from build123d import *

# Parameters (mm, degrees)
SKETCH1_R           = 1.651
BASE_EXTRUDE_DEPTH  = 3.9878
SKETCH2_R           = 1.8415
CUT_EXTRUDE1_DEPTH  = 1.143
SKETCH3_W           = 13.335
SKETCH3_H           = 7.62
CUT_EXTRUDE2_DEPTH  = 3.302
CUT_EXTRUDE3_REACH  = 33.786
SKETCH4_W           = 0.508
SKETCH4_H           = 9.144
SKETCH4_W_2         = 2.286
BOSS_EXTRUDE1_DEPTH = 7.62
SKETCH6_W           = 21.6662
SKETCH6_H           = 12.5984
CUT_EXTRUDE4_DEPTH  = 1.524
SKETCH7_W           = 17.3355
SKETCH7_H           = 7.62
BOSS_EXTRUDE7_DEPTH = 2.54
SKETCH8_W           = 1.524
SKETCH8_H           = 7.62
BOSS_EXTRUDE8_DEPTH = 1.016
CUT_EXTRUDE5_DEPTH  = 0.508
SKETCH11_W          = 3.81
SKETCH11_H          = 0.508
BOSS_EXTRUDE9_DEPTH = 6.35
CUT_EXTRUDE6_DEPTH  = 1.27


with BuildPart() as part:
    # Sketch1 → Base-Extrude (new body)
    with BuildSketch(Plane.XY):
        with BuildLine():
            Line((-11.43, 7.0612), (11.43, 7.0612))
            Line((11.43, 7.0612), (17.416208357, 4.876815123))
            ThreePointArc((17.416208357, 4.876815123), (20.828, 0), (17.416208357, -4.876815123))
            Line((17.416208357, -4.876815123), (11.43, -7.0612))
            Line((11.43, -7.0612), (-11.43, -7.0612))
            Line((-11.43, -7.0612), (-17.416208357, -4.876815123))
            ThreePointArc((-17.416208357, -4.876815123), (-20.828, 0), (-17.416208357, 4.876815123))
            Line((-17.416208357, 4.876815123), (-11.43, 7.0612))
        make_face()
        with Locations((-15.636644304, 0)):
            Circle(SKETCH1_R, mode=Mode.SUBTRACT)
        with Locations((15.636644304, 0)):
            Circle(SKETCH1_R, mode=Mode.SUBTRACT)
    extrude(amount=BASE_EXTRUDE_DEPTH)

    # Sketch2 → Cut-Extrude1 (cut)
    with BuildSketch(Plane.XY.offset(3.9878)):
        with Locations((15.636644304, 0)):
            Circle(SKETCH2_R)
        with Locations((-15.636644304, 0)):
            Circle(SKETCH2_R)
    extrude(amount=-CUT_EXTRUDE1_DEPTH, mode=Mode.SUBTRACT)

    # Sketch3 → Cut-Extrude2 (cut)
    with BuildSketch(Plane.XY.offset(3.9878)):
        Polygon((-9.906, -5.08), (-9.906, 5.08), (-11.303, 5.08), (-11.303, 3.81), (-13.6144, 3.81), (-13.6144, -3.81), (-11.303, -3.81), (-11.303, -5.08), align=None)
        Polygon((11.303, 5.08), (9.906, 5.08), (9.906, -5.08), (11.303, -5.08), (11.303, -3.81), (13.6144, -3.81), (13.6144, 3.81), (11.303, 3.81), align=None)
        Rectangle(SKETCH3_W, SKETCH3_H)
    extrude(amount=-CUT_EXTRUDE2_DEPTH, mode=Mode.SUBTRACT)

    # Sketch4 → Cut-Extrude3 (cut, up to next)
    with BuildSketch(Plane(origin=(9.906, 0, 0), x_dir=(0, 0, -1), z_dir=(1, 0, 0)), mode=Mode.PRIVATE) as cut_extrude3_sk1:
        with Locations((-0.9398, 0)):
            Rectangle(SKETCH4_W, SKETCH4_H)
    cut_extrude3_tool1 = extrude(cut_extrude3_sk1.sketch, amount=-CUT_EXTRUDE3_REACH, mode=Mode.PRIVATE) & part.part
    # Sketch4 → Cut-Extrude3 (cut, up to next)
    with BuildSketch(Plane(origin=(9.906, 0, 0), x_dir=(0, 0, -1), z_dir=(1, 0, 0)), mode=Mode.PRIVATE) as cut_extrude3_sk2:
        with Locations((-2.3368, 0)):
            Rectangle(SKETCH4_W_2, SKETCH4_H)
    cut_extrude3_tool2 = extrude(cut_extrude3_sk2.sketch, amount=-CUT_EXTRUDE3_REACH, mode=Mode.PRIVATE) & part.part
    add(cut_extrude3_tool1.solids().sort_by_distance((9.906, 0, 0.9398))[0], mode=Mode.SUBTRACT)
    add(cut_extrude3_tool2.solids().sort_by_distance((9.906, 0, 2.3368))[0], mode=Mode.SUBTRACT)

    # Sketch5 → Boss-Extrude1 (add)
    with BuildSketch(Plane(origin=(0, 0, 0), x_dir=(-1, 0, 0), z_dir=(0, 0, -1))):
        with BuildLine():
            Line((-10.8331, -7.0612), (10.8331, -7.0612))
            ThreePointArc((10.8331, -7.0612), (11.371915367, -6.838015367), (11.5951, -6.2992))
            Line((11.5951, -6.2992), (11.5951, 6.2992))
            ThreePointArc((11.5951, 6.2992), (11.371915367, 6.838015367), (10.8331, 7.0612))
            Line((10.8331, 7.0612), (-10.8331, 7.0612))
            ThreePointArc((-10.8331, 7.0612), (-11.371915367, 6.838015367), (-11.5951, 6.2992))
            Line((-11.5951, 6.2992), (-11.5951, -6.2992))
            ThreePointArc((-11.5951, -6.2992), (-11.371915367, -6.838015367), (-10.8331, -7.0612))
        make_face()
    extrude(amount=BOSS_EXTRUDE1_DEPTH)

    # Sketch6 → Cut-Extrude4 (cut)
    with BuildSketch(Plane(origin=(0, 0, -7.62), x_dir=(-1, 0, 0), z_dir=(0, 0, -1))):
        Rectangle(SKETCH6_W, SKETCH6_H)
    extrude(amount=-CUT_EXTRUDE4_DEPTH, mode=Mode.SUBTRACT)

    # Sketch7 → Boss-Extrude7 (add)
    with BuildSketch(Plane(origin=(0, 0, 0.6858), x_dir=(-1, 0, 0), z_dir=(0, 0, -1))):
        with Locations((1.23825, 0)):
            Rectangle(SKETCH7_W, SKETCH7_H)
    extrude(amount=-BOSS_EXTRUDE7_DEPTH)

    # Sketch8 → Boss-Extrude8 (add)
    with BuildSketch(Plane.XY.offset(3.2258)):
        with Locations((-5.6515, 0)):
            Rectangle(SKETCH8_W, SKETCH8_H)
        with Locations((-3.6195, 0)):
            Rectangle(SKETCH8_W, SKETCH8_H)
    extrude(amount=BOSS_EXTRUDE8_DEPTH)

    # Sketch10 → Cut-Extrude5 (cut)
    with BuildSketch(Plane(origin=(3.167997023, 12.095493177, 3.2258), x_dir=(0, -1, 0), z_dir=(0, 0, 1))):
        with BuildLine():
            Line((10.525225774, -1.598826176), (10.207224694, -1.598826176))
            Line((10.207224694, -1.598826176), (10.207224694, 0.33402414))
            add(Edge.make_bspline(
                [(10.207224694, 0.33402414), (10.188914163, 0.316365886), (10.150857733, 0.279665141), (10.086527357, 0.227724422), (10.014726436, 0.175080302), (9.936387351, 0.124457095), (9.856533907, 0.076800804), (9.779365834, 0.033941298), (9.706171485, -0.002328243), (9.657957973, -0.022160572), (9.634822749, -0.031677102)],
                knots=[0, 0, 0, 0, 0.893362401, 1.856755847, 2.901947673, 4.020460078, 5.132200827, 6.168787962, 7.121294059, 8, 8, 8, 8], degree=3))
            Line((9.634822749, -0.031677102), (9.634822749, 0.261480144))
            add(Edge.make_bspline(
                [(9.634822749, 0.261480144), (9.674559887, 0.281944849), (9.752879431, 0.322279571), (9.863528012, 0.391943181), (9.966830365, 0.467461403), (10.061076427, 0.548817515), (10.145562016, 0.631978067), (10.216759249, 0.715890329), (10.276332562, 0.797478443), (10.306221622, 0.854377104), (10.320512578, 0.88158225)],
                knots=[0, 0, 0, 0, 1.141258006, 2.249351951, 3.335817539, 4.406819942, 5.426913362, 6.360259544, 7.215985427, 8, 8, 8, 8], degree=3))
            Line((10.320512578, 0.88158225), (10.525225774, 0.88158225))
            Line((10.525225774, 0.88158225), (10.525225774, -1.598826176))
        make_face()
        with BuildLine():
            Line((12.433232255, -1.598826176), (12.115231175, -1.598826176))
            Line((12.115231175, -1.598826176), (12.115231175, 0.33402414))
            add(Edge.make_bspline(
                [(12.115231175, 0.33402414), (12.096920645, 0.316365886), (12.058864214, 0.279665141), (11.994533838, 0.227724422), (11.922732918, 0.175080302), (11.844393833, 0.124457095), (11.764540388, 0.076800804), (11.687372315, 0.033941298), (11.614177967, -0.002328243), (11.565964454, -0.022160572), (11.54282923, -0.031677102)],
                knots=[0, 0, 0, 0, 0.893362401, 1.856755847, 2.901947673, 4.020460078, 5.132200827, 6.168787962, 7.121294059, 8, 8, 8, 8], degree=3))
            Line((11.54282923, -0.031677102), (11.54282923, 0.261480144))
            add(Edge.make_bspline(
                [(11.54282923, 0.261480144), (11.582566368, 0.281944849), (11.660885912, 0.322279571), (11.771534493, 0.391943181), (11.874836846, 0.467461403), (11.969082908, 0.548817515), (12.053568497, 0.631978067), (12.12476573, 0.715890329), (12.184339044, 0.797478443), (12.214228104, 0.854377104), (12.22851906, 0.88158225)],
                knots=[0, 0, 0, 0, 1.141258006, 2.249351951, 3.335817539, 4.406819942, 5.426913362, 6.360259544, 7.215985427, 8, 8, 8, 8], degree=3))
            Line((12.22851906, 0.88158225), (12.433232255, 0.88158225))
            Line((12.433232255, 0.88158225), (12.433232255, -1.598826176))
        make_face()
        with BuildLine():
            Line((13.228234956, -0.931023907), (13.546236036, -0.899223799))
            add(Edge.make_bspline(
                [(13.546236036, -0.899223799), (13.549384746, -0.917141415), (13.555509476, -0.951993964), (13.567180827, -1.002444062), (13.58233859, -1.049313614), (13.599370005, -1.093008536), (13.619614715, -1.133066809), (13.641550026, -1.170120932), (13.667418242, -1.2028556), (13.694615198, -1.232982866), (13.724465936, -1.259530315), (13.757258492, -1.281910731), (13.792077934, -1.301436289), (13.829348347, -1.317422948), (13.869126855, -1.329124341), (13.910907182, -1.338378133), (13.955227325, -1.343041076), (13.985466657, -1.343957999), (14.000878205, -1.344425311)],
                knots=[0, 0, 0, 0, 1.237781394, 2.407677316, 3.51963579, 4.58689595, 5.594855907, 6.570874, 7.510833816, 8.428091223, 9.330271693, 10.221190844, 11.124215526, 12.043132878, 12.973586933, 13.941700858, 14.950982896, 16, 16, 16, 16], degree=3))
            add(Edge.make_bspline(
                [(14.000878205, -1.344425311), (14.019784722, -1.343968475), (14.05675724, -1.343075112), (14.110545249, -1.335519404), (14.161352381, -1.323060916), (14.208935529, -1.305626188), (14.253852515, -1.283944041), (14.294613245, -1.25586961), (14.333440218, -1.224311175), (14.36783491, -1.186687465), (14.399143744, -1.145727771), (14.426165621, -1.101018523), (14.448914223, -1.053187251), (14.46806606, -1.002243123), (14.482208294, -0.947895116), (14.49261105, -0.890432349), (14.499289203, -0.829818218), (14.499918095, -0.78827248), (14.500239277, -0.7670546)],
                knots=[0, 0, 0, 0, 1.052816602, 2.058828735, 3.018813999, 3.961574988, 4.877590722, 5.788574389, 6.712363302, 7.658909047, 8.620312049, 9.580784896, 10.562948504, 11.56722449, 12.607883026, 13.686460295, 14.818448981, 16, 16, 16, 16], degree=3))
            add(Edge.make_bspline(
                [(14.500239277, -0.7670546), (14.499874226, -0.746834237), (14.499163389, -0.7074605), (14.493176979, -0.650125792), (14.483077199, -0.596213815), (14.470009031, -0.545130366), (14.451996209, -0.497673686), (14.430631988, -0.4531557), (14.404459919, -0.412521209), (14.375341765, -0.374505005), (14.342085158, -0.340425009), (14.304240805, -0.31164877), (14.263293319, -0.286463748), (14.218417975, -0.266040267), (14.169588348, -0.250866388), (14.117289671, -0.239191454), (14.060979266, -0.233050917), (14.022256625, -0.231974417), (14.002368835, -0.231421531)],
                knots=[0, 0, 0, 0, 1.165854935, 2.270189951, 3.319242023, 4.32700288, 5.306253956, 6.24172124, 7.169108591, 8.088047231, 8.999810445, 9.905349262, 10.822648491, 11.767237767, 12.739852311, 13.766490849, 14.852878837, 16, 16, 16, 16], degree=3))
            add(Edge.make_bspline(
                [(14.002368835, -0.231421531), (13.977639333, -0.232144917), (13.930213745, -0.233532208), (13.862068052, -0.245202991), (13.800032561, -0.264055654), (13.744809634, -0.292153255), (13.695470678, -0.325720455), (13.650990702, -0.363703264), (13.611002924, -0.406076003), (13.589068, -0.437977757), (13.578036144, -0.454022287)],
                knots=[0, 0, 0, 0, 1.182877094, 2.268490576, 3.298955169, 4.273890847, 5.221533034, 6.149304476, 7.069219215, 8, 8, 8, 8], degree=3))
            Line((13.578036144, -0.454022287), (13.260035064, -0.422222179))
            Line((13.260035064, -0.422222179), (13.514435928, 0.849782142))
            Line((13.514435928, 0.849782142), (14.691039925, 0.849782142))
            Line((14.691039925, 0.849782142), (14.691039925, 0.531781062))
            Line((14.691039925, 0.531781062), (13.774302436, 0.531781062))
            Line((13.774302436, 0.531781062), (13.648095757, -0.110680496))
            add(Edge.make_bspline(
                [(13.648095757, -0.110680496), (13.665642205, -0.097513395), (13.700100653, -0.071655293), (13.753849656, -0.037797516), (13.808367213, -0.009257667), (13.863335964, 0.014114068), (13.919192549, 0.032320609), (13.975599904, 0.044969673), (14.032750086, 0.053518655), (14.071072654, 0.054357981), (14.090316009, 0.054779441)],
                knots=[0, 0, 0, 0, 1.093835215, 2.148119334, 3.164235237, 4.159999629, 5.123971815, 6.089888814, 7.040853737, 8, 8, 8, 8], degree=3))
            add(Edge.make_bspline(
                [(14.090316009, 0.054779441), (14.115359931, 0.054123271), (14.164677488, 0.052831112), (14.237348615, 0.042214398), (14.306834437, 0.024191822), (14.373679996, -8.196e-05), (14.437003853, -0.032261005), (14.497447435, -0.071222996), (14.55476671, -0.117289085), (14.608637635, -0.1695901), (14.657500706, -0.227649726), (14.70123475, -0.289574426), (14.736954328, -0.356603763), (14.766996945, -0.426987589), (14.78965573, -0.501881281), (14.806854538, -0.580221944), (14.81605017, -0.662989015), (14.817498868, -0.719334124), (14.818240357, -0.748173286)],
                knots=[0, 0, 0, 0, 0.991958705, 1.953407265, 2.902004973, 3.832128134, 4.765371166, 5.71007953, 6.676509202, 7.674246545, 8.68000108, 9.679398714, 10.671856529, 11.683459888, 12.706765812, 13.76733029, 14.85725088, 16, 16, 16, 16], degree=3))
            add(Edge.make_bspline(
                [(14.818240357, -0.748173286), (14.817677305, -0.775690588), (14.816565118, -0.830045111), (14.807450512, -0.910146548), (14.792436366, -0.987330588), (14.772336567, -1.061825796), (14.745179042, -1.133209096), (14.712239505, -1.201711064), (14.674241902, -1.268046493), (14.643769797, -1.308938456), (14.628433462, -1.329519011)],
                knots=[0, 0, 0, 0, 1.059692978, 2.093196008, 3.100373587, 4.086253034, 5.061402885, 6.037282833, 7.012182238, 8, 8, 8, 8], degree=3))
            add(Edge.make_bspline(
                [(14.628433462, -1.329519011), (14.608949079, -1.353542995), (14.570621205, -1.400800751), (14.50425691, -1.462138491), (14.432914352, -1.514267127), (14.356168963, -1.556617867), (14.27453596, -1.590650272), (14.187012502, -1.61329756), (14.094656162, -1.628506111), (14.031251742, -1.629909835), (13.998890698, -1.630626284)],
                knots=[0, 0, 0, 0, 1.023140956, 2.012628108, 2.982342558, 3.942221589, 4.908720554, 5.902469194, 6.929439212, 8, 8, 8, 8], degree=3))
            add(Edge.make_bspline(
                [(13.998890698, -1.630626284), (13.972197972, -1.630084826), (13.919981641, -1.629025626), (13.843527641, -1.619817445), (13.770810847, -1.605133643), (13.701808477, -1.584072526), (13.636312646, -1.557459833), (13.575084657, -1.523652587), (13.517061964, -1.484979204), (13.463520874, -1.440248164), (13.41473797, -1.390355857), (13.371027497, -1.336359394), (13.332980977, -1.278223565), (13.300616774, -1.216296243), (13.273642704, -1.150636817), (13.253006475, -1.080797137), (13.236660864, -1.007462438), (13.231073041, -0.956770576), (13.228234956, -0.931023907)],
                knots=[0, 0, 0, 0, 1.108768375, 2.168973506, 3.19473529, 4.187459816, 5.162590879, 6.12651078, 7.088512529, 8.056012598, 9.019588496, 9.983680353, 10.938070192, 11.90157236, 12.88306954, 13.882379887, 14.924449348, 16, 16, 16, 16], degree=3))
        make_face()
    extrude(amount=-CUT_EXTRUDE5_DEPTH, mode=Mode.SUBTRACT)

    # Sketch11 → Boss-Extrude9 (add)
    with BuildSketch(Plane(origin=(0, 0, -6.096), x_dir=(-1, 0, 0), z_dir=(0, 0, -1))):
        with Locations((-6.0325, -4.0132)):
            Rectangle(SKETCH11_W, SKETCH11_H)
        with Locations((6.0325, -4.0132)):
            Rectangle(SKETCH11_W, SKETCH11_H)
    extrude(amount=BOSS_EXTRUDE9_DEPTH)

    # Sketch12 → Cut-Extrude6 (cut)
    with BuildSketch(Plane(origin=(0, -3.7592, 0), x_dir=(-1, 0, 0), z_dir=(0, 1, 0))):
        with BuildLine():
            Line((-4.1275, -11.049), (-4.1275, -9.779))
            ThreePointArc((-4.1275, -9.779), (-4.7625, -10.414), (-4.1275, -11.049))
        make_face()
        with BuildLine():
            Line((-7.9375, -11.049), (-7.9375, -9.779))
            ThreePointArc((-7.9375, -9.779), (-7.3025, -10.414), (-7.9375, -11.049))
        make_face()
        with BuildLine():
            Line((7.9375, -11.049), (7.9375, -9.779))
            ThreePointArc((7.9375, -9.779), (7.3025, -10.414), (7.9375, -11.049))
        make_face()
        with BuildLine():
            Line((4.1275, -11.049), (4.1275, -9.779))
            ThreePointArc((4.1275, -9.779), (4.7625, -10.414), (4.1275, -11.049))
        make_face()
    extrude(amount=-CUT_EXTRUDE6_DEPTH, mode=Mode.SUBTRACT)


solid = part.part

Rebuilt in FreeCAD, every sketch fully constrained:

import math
import FreeCAD as App
import Part
import Sketcher
Q = App.Units.Quantity


def add_polygon(sketch, points):
    """Adds a closed chain of lines whose ends are joined by coincident constraints."""
    first, n = sketch.GeometryCount, len(points)
    for a, b in zip(points, points[1:] + points[:1]):
        sketch.addGeometry(Part.LineSegment(App.Vector(*a, 0), App.Vector(*b, 0)), False)
    for i in range(n):
        sketch.addConstraint(Sketcher.Constraint("Coincident", first + i, 2, first + (i + 1) % n, 1))

doc = App.newDocument("Part")
body = doc.addObject("PartDesign::Body", "Body")

sketch1 = body.newObject("Sketcher::SketchObject", "Sketch")
sketch1.AttachmentSupport = (doc.getObject("XY_Plane"), [""])
sketch1.MapMode = "FlatFace"
sketch1.addGeometry([
    Part.LineSegment(App.Vector(11.4, 7.1, 0), App.Vector(-11.4, 7.1, 0)),
    Part.LineSegment(App.Vector(-11.4, 7.1, 0), App.Vector(-17.4, 4.9, 0)),
    Part.ArcOfCircle(Part.Circle(App.Vector(-15.6, 0, 0), App.Vector(0, 0, 1), 5.2), math.radians(110), math.radians(250)),
    Part.LineSegment(App.Vector(-17.4, -4.9, 0), App.Vector(-11.4, -7.1, 0)),
    Part.LineSegment(App.Vector(-11.4, -7.1, 0), App.Vector(11.4, -7.1, 0)),
    Part.LineSegment(App.Vector(11.4, -7.1, 0), App.Vector(17.4, -4.9, 0)),
    Part.ArcOfCircle(Part.Circle(App.Vector(15.6, 0, 0), App.Vector(0, 0, 1), 5.2), math.radians(-70), math.radians(70)),
    Part.LineSegment(App.Vector(17.4, 4.9, 0), App.Vector(11.4, 7.1, 0)),
    Part.Circle(App.Vector(15.6, 0, 0), App.Vector(0, 0, 1), 1.7),
    Part.Circle(App.Vector(-15.6, 0, 0), App.Vector(0, 0, 1), 1.7),
], False)
sketch1.addConstraint([
    Sketcher.Constraint("Coincident", 0, 2, 1, 1),
    Sketcher.Constraint("Tangent", 1, 2, 2, 1),
    Sketcher.Constraint("Tangent", 2, 2, 3, 1),
    Sketcher.Constraint("Coincident", 3, 2, 4, 1),
    Sketcher.Constraint("Coincident", 4, 2, 5, 1),
    Sketcher.Constraint("Tangent", 5, 2, 6, 1),
    Sketcher.Constraint("Tangent", 6, 2, 7, 1),
    Sketcher.Constraint("Coincident", 7, 2, 0, 1),
    Sketcher.Constraint("Horizontal", 0),
    Sketcher.Constraint("Horizontal", 4),
    Sketcher.Constraint("Coincident", 8, 3, 6, 3),
    Sketcher.Constraint("Coincident", 9, 3, 2, 3),
    Sketcher.Constraint("Equal", 2, 6),
    Sketcher.Constraint("Equal", 8, 9),
    Sketcher.Constraint("Symmetric", 2, 3, 6, 3, -1, 1),
    Sketcher.Constraint("Symmetric", 0, 2, 4, 2, -1, 1),
    Sketcher.Constraint("Symmetric", 2, 2, 5, 2, -2),
    Sketcher.Constraint("Parallel", 3, 7),
    Sketcher.Constraint("Diameter", 8, Q("0.13 in")),
    Sketcher.Constraint("DistanceX", 0, 2, 0, 1, Q("0.9 in")),
    Sketcher.Constraint("DistanceY", -1, 1, 0, 2, Q("0.278 in")),
    Sketcher.Constraint("Radius", 2, Q("5.191356 mm")),
    Sketcher.Constraint("Distance", 1, Q("6.372302 mm")),
])
pad1 = body.newObject("PartDesign::Pad", "Pad")
pad1.Profile = sketch1
pad1.Length = Q("0.157 in")

sketch2 = body.newObject("Sketcher::SketchObject", "Sketch001")
sketch2.AttachmentSupport = (doc.getObject("XY_Plane"), [""])
sketch2.MapMode = "FlatFace"
sketch2.AttachmentOffset = App.Placement(App.Vector(0, 0, 0.157 * 25.4), App.Rotation())
sketch2.addGeometry([
    Part.Circle(App.Vector(15.6, 0, 0), App.Vector(0, 0, 1), 1.8),
    Part.Circle(App.Vector(-15.6, 0, 0), App.Vector(0, 0, 1), 1.8),
], False)
sketch2.addConstraint([
    Sketcher.Constraint("Equal", 0, 1),
    Sketcher.Constraint("Symmetric", 0, 3, 1, 3, -1, 1),
    Sketcher.Constraint("PointOnObject", 0, 3, -1),
    Sketcher.Constraint("Diameter", 0, Q("0.145 in")),
    Sketcher.Constraint("DistanceX", 1, 3, 0, 3, Q("31.273289 mm")),
])
pocket1 = body.newObject("PartDesign::Pocket", "Pocket")
pocket1.Profile = sketch2
pocket1.Length = Q("0.045 in")

sketch3 = body.newObject("Sketcher::SketchObject", "Sketch002")
sketch3.AttachmentSupport = (doc.getObject("XY_Plane"), [""])
sketch3.MapMode = "FlatFace"
sketch3.AttachmentOffset = App.Placement(App.Vector(0, 0, 0.157 * 25.4), App.Rotation())
add_polygon(sketch3, [(-9.9, -5.1), (-9.9, 5.1), (-11.3, 5.1), (-11.3, 3.8), (-13.6, 3.8), (-13.6, -3.8), (-11.3, -3.8), (-11.3, -5.1)])
add_polygon(sketch3, [(11.3, 5.1), (9.9, 5.1), (9.9, -5.1), (11.3, -5.1), (11.3, -3.8), (13.6, -3.8), (13.6, 3.8), (11.3, 3.8)])
add_polygon(sketch3, [(-6.7, 3.8), (-6.7, -3.8), (6.7, -3.8), (6.7, 3.8)])
sketch3.addConstraint([
    Sketcher.Constraint("Vertical", 0),
    Sketcher.Constraint("Horizontal", 1),
    Sketcher.Constraint("Vertical", 2),
    Sketcher.Constraint("Horizontal", 3),
    Sketcher.Constraint("Vertical", 4),
    Sketcher.Constraint("Horizontal", 5),
    Sketcher.Constraint("Vertical", 6),
    Sketcher.Constraint("Horizontal", 7),
    Sketcher.Constraint("Horizontal", 8),
    Sketcher.Constraint("Vertical", 9),
    Sketcher.Constraint("Horizontal", 10),
    Sketcher.Constraint("Vertical", 11),
    Sketcher.Constraint("Horizontal", 12),
    Sketcher.Constraint("Vertical", 13),
    Sketcher.Constraint("Horizontal", 14),
    Sketcher.Constraint("Vertical", 15),
    Sketcher.Constraint("Vertical", 16),
    Sketcher.Constraint("Horizontal", 17),
    Sketcher.Constraint("Vertical", 18),
    Sketcher.Constraint("Horizontal", 19),
    Sketcher.Constraint("Symmetric", 7, 2, 8, 2, -1, 1),
    Sketcher.Constraint("Symmetric", 1, 2, 10, 2, -1, 1),
    Sketcher.Constraint("Symmetric", 3, 2, 12, 2, -1, 1),
    Sketcher.Constraint("Symmetric", 5, 2, 14, 2, -1, 1),
    Sketcher.Constraint("Symmetric", 16, 2, 18, 2, -1, 1),
    Sketcher.Constraint("Symmetric", 6, 2, 10, 2, -2),
    Sketcher.Constraint("Horizontal", 5, 2, 11, 2),
    Sketcher.Constraint("Horizontal", 12, 2, 16, 2),
    Sketcher.Constraint("DistanceY", 0, 1, 0, 2, Q("0.4 in")),
    Sketcher.Constraint("DistanceY", 4, 2, 4, 1, Q("0.3 in")),
    Sketcher.Constraint("DistanceX", 1, 2, 1, 1, Q("0.055 in")),
    Sketcher.Constraint("DistanceX", 3, 2, 3, 1, Q("0.091 in")),
    Sketcher.Constraint("DistanceX", 17, 1, 17, 2, Q("0.525 in")),
    Sketcher.Constraint("DistanceX", 0, 2, -1, 1, Q("0.39 in")),
])
pocket2 = body.newObject("PartDesign::Pocket", "Pocket001")
pocket2.Profile = sketch3
pocket2.Length = Q("0.13 in")

sketch4 = body.newObject("Sketcher::SketchObject", "Sketch003")
sketch4.AttachmentSupport = (doc.getObject("YZ_Plane"), [""])
sketch4.MapMode = "FlatFace"
sketch4.AttachmentOffset = App.Placement(App.Vector(0, 0, 0.39 * 25.4), App.Rotation())
add_polygon(sketch4, [(4.6, 1.2), (-4.6, 1.2), (-4.6, 0.7), (4.6, 0.7)])
sketch4.addConstraint([
    Sketcher.Constraint("Horizontal", 0),
    Sketcher.Constraint("Vertical", 1),
    Sketcher.Constraint("Horizontal", 2),
    Sketcher.Constraint("Vertical", 3),
    Sketcher.Constraint("DistanceX", 0, 2, 0, 1, Q("0.36 in")),
    Sketcher.Constraint("DistanceY", 1, 2, 1, 1, Q("0.02 in")),
    Sketcher.Constraint("DistanceX", 0, 2, -1, 1, Q("0.18 in")),
    Sketcher.Constraint("DistanceY", -1, 1, 0, 2, Q("0.047 in")),
])
pocket3 = body.newObject("PartDesign::Pocket", "Pocket002")
pocket3.Profile = sketch4
pocket3.Length = Q("0.78 in")

sketch5 = body.newObject("Sketcher::SketchObject", "Sketch004")
sketch5.AttachmentSupport = (doc.getObject("YZ_Plane"), [""])
sketch5.MapMode = "FlatFace"
sketch5.AttachmentOffset = App.Placement(App.Vector(0, 0, 0.39 * 25.4), App.Rotation())
add_polygon(sketch5, [(4.6, 3.5), (-4.6, 3.5), (-4.6, 1.2), (4.6, 1.2)])
sketch5.addConstraint([
    Sketcher.Constraint("Horizontal", 0),
    Sketcher.Constraint("Vertical", 1),
    Sketcher.Constraint("Horizontal", 2),
    Sketcher.Constraint("Vertical", 3),
    Sketcher.Constraint("DistanceX", 0, 2, 0, 1, Q("0.36 in")),
    Sketcher.Constraint("DistanceY", 1, 2, 1, 1, Q("0.09 in")),
    Sketcher.Constraint("DistanceX", 0, 2, -1, 1, Q("0.18 in")),
    Sketcher.Constraint("DistanceY", -1, 1, 0, 2, Q("0.137 in")),
])
pocket4 = body.newObject("PartDesign::Pocket", "Pocket003")
pocket4.Profile = sketch5
pocket4.Length = Q("0.78 in")

sketch6 = body.newObject("Sketcher::SketchObject", "Sketch005")
sketch6.AttachmentSupport = (doc.getObject("XY_Plane"), [""])
sketch6.MapMode = "FlatFace"
sketch6.addGeometry([
    Part.LineSegment(App.Vector(10.8, -7.1, 0), App.Vector(-10.8, -7.1, 0)),
    Part.ArcOfCircle(Part.Circle(App.Vector(-10.8, -6.3, 0), App.Vector(0, 0, 1), 0.8), math.radians(-180), math.radians(-90)),
    Part.LineSegment(App.Vector(-11.6, -6.3, 0), App.Vector(-11.6, 6.3, 0)),
    Part.ArcOfCircle(Part.Circle(App.Vector(-10.8, 6.3, 0), App.Vector(0, 0, 1), 0.8), math.radians(90), math.radians(180)),
    Part.LineSegment(App.Vector(-10.8, 7.1, 0), App.Vector(10.8, 7.1, 0)),
    Part.ArcOfCircle(Part.Circle(App.Vector(10.8, 6.3, 0), App.Vector(0, 0, 1), 0.8), math.radians(0), math.radians(90)),
    Part.LineSegment(App.Vector(11.6, 6.3, 0), App.Vector(11.6, -6.3, 0)),
    Part.ArcOfCircle(Part.Circle(App.Vector(10.8, -6.3, 0), App.Vector(0, 0, 1), 0.8), math.radians(-90), math.radians(0)),
], False)
sketch6.addConstraint([
    Sketcher.Constraint("Tangent", 0, 2, 1, 2),
    Sketcher.Constraint("Tangent", 1, 1, 2, 1),
    Sketcher.Constraint("Tangent", 2, 2, 3, 2),
    Sketcher.Constraint("Tangent", 3, 1, 4, 1),
    Sketcher.Constraint("Tangent", 4, 2, 5, 2),
    Sketcher.Constraint("Tangent", 5, 1, 6, 1),
    Sketcher.Constraint("Tangent", 6, 2, 7, 2),
    Sketcher.Constraint("Tangent", 7, 1, 0, 1),
    Sketcher.Constraint("Horizontal", 0),
    Sketcher.Constraint("Vertical", 2),
    Sketcher.Constraint("Horizontal", 4),
    Sketcher.Constraint("Vertical", 6),
    Sketcher.Constraint("Equal", 1, 3),
    Sketcher.Constraint("Equal", 3, 5),
    Sketcher.Constraint("Equal", 5, 7),
    Sketcher.Constraint("Symmetric", 1, 3, 5, 3, -1, 1),
    Sketcher.Constraint("Radius", 1, Q("0.03 in")),
    Sketcher.Constraint("DistanceX", 0, 2, 0, 1, Q("0.853 in")),
    Sketcher.Constraint("DistanceY", 2, 1, 2, 2, Q("0.496 in")),
])
pad2 = body.newObject("PartDesign::Pad", "Pad001")
pad2.Profile = sketch6
pad2.Length = Q("0.3 in")
pad2.Reversed = True

sketch7 = body.newObject("Sketcher::SketchObject", "Sketch006")
sketch7.AttachmentSupport = (doc.getObject("XY_Plane"), [""])
sketch7.MapMode = "FlatFace"
sketch7.AttachmentOffset = App.Placement(App.Vector(0, 0, -0.3 * 25.4), App.Rotation())
add_polygon(sketch7, [(11, 6), (11, -6), (-11, -6), (-11, 6)])
sketch7.addConstraint([
    Sketcher.Constraint("Vertical", 0),
    Sketcher.Constraint("Horizontal", 1),
    Sketcher.Constraint("Vertical", 2),
    Sketcher.Constraint("Horizontal", 3),
    Sketcher.Constraint("Symmetric", 0, 2, 2, 2, -1, 1),
    Sketcher.Constraint("DistanceX", 1, 2, 1, 1, Q("0.853 in")),
    Sketcher.Constraint("DistanceY", 0, 2, 0, 1, Q("0.496 in")),
])
pocket5 = body.newObject("PartDesign::Pocket", "Pocket004")
pocket5.Profile = sketch7
pocket5.Length = Q("0.06 in")
pocket5.Reversed = True

sketch8 = body.newObject("Sketcher::SketchObject", "Sketch007")
sketch8.AttachmentSupport = (doc.getObject("XY_Plane"), [""])
sketch8.MapMode = "FlatFace"
sketch8.AttachmentOffset = App.Placement(App.Vector(0, 0, 0.027 * 25.4), App.Rotation())
add_polygon(sketch8, [(7, 4), (7, -4), (-10, -4), (-10, 4)])
sketch8.addConstraint([
    Sketcher.Constraint("Vertical", 0),
    Sketcher.Constraint("Horizontal", 1),
    Sketcher.Constraint("Vertical", 2),
    Sketcher.Constraint("Horizontal", 3),
    Sketcher.Constraint("DistanceY", 0, 2, 0, 1, Q("0.3 in")),
    Sketcher.Constraint("DistanceY", 0, 2, -1, 1, Q("0.15 in")),
    Sketcher.Constraint("DistanceX", 1, 2, -1, 1, Q("0.39 in")),
    Sketcher.Constraint("DistanceX", 1, 2, 1, 1, Q("0.6825 in")),
])
pad3 = body.newObject("PartDesign::Pad", "Pad002")
pad3.Profile = sketch8
pad3.Length = Q("0.1 in")

sketch9 = body.newObject("Sketcher::SketchObject", "Sketch008")
sketch9.AttachmentSupport = (doc.getObject("XY_Plane"), [""])
sketch9.MapMode = "FlatFace"
sketch9.AttachmentOffset = App.Placement(App.Vector(0, 0, 0.127 * 25.4), App.Rotation())
add_polygon(sketch9, [(-6.4, 3.8), (-6.4, -3.8), (-4.9, -3.8), (-4.9, 3.8)])
add_polygon(sketch9, [(-4.4, 3.8), (-4.4, -3.8), (-2.9, -3.8), (-2.9, 3.8)])
sketch9.addConstraint([
    Sketcher.Constraint("Vertical", 0),
    Sketcher.Constraint("Horizontal", 1),
    Sketcher.Constraint("Vertical", 2),
    Sketcher.Constraint("Horizontal", 3),
    Sketcher.Constraint("Vertical", 4),
    Sketcher.Constraint("Horizontal", 5),
    Sketcher.Constraint("Vertical", 6),
    Sketcher.Constraint("Horizontal", 7),
    Sketcher.Constraint("Horizontal", 1, 2, 4, 2),
    Sketcher.Constraint("Horizontal", 3, 2, 6, 2),
    Sketcher.Constraint("Equal", 3, 5),
    Sketcher.Constraint("DistanceY", 0, 2, 0, 1, Q("0.3 in")),
    Sketcher.Constraint("DistanceX", 1, 1, 1, 2, Q("0.06 in")),
    Sketcher.Constraint("DistanceY", 0, 2, -1, 1, Q("0.15 in")),
    Sketcher.Constraint("DistanceX", 1, 2, 4, 2, Q("0.02 in")),
    Sketcher.Constraint("DistanceX", 0, 2, -1, 1, Q("0.2525 in")),
])
pad4 = body.newObject("PartDesign::Pad", "Pad003")
pad4.Profile = sketch9
pad4.Length = Q("0.04 in")

sketch10 = body.newObject("Sketcher::SketchObject", "Sketch009")
sketch10.AttachmentSupport = (doc.getObject("XY_Plane"), [""])
sketch10.MapMode = "FlatFace"
sketch10.AttachmentOffset = App.Placement(App.Vector(0, 0, 0.127 * 25.4), App.Rotation())
sketch10.addGeometry([
    Part.LineSegment(App.Vector(1.569171, 1.888268, 0), App.Vector(1.569171, 1.570267, 0)),
    Part.LineSegment(App.Vector(1.569171, 1.570267, 0), App.Vector(4.049579, 1.570267, 0)),
    Part.LineSegment(App.Vector(4.049579, 1.570267, 0), App.Vector(4.049579, 1.774981, 0)),
    Part.BSplineCurve([App.Vector(3.429477, 2.46067, 0), App.Vector(3.449942, 2.420933, 0), App.Vector(3.490277, 2.342614, 0), App.Vector(3.55994, 2.231965, 0), App.Vector(3.635458, 2.128663, 0), App.Vector(3.716815, 2.034417, 0), App.Vector(3.799975, 1.949931, 0), App.Vector(3.883887, 1.878734, 0), App.Vector(3.965475, 1.819161, 0), App.Vector(4.022374, 1.789272, 0), App.Vector(4.049579, 1.774981, 0)], [4, 1, 1, 1, 1, 1, 1, 1, 4], [0, 1.141258006, 2.249351951, 3.335817539, 4.406819942, 5.426913362, 6.360259544, 7.215985427, 8], False, 3, [1, 1, 1, 1, 1, 1, 1, 1, 1, 1, 1], False),
    Part.LineSegment(App.Vector(3.429477, 2.46067, 0), App.Vector(3.13632, 2.46067, 0)),
    Part.BSplineCurve([App.Vector(3.502021, 1.888268, 0), App.Vector(3.484363, 1.906579, 0), App.Vector(3.447662, 1.944635, 0), App.Vector(3.395721, 2.008966, 0), App.Vector(3.343077, 2.080767, 0), App.Vector(3.292454, 2.159106, 0), App.Vector(3.244798, 2.238959, 0), App.Vector(3.201938, 2.316127, 0), App.Vector(3.165669, 2.389322, 0), App.Vector(3.145836, 2.437535, 0), App.Vector(3.13632, 2.46067, 0)], [4, 1, 1, 1, 1, 1, 1, 1, 4], [0, 0.893362401, 1.856755847, 2.901947673, 4.020460078, 5.132200827, 6.168787962, 7.121294059, 8], False, 3, [1, 1, 1, 1, 1, 1, 1, 1, 1, 1, 1], False),
    Part.LineSegment(App.Vector(3.502021, 1.888268, 0), App.Vector(1.569171, 1.888268, 0)),
    Part.LineSegment(App.Vector(1.569171, -0.019738, 0), App.Vector(1.569171, -0.337739, 0)),
    Part.LineSegment(App.Vector(1.569171, -0.337739, 0), App.Vector(4.049579, -0.337739, 0)),
    Part.LineSegment(App.Vector(4.049579, -0.337739, 0), App.Vector(4.049579, -0.133026, 0)),
    Part.BSplineCurve([App.Vector(3.429477, 0.552664, 0), App.Vector(3.449942, 0.512927, 0), App.Vector(3.490277, 0.434607, 0), App.Vector(3.55994, 0.323959, 0), App.Vector(3.635458, 0.220656, 0), App.Vector(3.716815, 0.12641, 0), App.Vector(3.799975, 0.041925, 0), App.Vector(3.883887, -0.029273, 0), App.Vector(3.965475, -0.088846, 0), App.Vector(4.022374, -0.118735, 0), App.Vector(4.049579, -0.133026, 0)], [4, 1, 1, 1, 1, 1, 1, 1, 4], [0, 1.141258006, 2.249351951, 3.335817539, 4.406819942, 5.426913362, 6.360259544, 7.215985427, 8], False, 3, [1, 1, 1, 1, 1, 1, 1, 1, 1, 1, 1], False),
    Part.LineSegment(App.Vector(3.429477, 0.552664, 0), App.Vector(3.13632, 0.552664, 0)),
    Part.BSplineCurve([App.Vector(3.502021, -0.019738, 0), App.Vector(3.484363, -0.001427, 0), App.Vector(3.447662, 0.036629, 0), App.Vector(3.395721, 0.100959, 0), App.Vector(3.343077, 0.17276, 0), App.Vector(3.292454, 0.251099, 0), App.Vector(3.244798, 0.330953, 0), App.Vector(3.201938, 0.408121, 0), App.Vector(3.165669, 0.481315, 0), App.Vector(3.145836, 0.529529, 0), App.Vector(3.13632, 0.552664, 0)], [4, 1, 1, 1, 1, 1, 1, 1, 4], [0, 0.893362401, 1.856755847, 2.901947673, 4.020460078, 5.132200827, 6.168787962, 7.121294059, 8], False, 3, [1, 1, 1, 1, 1, 1, 1, 1, 1, 1, 1], False),
    Part.LineSegment(App.Vector(3.502021, -0.019738, 0), App.Vector(1.569171, -0.019738, 0)),
    Part.LineSegment(App.Vector(2.268773, -1.450743, 0), App.Vector(2.236973, -1.132742, 0)),
    Part.BSplineCurve([App.Vector(1.537371, -1.903398, 0), App.Vector(1.537912, -1.876705, 0), App.Vector(1.538971, -1.824488, 0), App.Vector(1.54818, -1.748034, 0), App.Vector(1.562863, -1.675318, 0), App.Vector(1.583924, -1.606315, 0), App.Vector(1.610537, -1.540819, 0), App.Vector(1.644344, -1.479591, 0), App.Vector(1.683018, -1.421569, 0), App.Vector(1.727749, -1.368028, 0), App.Vector(1.777641, -1.319245, 0), App.Vector(1.831638, -1.275534, 0), App.Vector(1.889773, -1.237488, 0), App.Vector(1.951701, -1.205124, 0), App.Vector(2.01736, -1.17815, 0), App.Vector(2.0872, -1.157513, 0), App.Vector(2.160535, -1.141168, 0), App.Vector(2.211226, -1.13558, 0), App.Vector(2.236973, -1.132742, 0)], [4, 1, 1, 1, 1, 1, 1, 1, 1, 1, 1, 1, 1, 1, 1, 1, 4], [0, 1.108768375, 2.168973506, 3.19473529, 4.187459816, 5.162590879, 6.12651078, 7.088512529, 8.056012598, 9.019588496, 9.983680353, 10.938070192, 11.90157236, 12.88306954, 13.882379887, 14.924449348, 16], False, 3, [1, 1, 1, 1, 1, 1, 1, 1, 1, 1, 1, 1, 1, 1, 1, 1, 1, 1, 1], False),
    Part.BSplineCurve([App.Vector(1.838478, -2.53294, 0), App.Vector(1.814454, -2.513456, 0), App.Vector(1.767196, -2.475128, 0), App.Vector(1.705859, -2.408764, 0), App.Vector(1.65373, -2.337421, 0), App.Vector(1.611379, -2.260676, 0), App.Vector(1.577347, -2.179043, 0), App.Vector(1.554699, -2.091519, 0), App.Vector(1.539491, -1.999163, 0), App.Vector(1.538087, -1.935759, 0), App.Vector(1.537371, -1.903398, 0)], [4, 1, 1, 1, 1, 1, 1, 1, 4], [0, 1.023140956, 2.012628108, 2.982342558, 3.942221589, 4.908720554, 5.902469194, 6.929439212, 8], False, 3, [1, 1, 1, 1, 1, 1, 1, 1, 1, 1, 1], False),
    Part.BSplineCurve([App.Vector(2.419824, -2.722747, 0), App.Vector(2.392306, -2.722184, 0), App.Vector(2.337952, -2.721072, 0), App.Vector(2.25785, -2.711957, 0), App.Vector(2.180666, -2.696943, 0), App.Vector(2.106171, -2.676843, 0), App.Vector(2.034788, -2.649686, 0), App.Vector(1.966286, -2.616746, 0), App.Vector(1.899951, -2.578749, 0), App.Vector(1.859059, -2.548277, 0), App.Vector(1.838478, -2.53294, 0)], [4, 1, 1, 1, 1, 1, 1, 1, 4], [0, 1.059692978, 2.093196008, 3.100373587, 4.086253034, 5.061402885, 6.037282833, 7.012182238, 8], False, 3, [1, 1, 1, 1, 1, 1, 1, 1, 1, 1, 1], False),
    Part.BSplineCurve([App.Vector(3.222776, -1.994823, 0), App.Vector(3.22212, -2.019867, 0), App.Vector(3.220828, -2.069184, 0), App.Vector(3.210211, -2.141855, 0), App.Vector(3.192189, -2.211341, 0), App.Vector(3.167915, -2.278187, 0), App.Vector(3.135736, -2.341511, 0), App.Vector(3.096774, -2.401954, 0), App.Vector(3.050708, -2.459274, 0), App.Vector(2.998407, -2.513144, 0), App.Vector(2.940347, -2.562008, 0), App.Vector(2.878423, -2.605742, 0), App.Vector(2.811393, -2.641461, 0), App.Vector(2.741009, -2.671504, 0), App.Vector(2.666116, -2.694163, 0), App.Vector(2.587775, -2.711361, 0), App.Vector(2.505008, -2.720557, 0), App.Vector(2.448663, -2.722006, 0), App.Vector(2.419824, -2.722747, 0)], [4, 1, 1, 1, 1, 1, 1, 1, 1, 1, 1, 1, 1, 1, 1, 1, 4], [0, 0.991958705, 1.953407265, 2.902004973, 3.832128134, 4.765371166, 5.71007953, 6.676509202, 7.674246545, 8.68000108, 9.679398714, 10.671856529, 11.683459888, 12.706765812, 13.76733029, 14.85725088, 16], False, 3, [1, 1, 1, 1, 1, 1, 1, 1, 1, 1, 1, 1, 1, 1, 1, 1, 1, 1, 1], False),
    Part.BSplineCurve([App.Vector(3.057317, -1.552603, 0), App.Vector(3.070484, -1.570149, 0), App.Vector(3.096342, -1.604607, 0), App.Vector(3.1302, -1.658356, 0), App.Vector(3.158739, -1.712874, 0), App.Vector(3.182111, -1.767843, 0), App.Vector(3.200318, -1.823699, 0), App.Vector(3.212967, -1.880107, 0), App.Vector(3.221516, -1.937257, 0), App.Vector(3.222355, -1.975579, 0), App.Vector(3.222776, -1.994823, 0)], [4, 1, 1, 1, 1, 1, 1, 1, 4], [0, 1.093835215, 2.148119334, 3.164235237, 4.159999629, 5.123971815, 6.089888814, 7.040853737, 8], False, 3, [1, 1, 1, 1, 1, 1, 1, 1, 1, 1, 1], False),
    Part.LineSegment(App.Vector(3.057317, -1.552603, 0), App.Vector(3.699778, -1.678809, 0)),
    Part.LineSegment(App.Vector(3.699778, -1.678809, 0), App.Vector(3.699778, -2.595547, 0)),
    Part.LineSegment(App.Vector(3.699778, -2.595547, 0), App.Vector(4.017779, -2.595547, 0)),
    Part.LineSegment(App.Vector(4.017779, -2.595547, 0), App.Vector(4.017779, -1.418943, 0)),
    Part.LineSegment(App.Vector(4.017779, -1.418943, 0), App.Vector(2.745775, -1.164542, 0)),
    Part.LineSegment(App.Vector(2.745775, -1.164542, 0), App.Vector(2.713975, -1.482543, 0)),
    Part.BSplineCurve([App.Vector(2.936575, -1.906876, 0), App.Vector(2.935852, -1.882146, 0), App.Vector(2.934465, -1.834721, 0), App.Vector(2.922794, -1.766575, 0), App.Vector(2.903941, -1.704539, 0), App.Vector(2.875844, -1.649316, 0), App.Vector(2.842277, -1.599978, 0), App.Vector(2.804294, -1.555498, 0), App.Vector(2.761921, -1.51551, 0), App.Vector(2.730019, -1.493575, 0), App.Vector(2.713975, -1.482543, 0)], [4, 1, 1, 1, 1, 1, 1, 1, 4], [0, 1.182877094, 2.268490576, 3.298955169, 4.273890847, 5.221533034, 6.149304476, 7.069219215, 8], False, 3, [1, 1, 1, 1, 1, 1, 1, 1, 1, 1, 1], False),
    Part.BSplineCurve([App.Vector(2.400942, -2.404746, 0), App.Vector(2.421163, -2.404381, 0), App.Vector(2.460537, -2.40367, 0), App.Vector(2.517871, -2.397684, 0), App.Vector(2.571783, -2.387584, 0), App.Vector(2.622867, -2.374516, 0), App.Vector(2.670323, -2.356503, 0), App.Vector(2.714841, -2.335139, 0), App.Vector(2.755476, -2.308967, 0), App.Vector(2.793492, -2.279849, 0), App.Vector(2.827572, -2.246592, 0), App.Vector(2.856348, -2.208748, 0), App.Vector(2.881533, -2.1678, 0), App.Vector(2.901957, -2.122925, 0), App.Vector(2.917131, -2.074095, 0), App.Vector(2.928806, -2.021796, 0), App.Vector(2.934946, -1.965486, 0), App.Vector(2.936023, -1.926763, 0), App.Vector(2.936575, -1.906876, 0)], [4, 1, 1, 1, 1, 1, 1, 1, 1, 1, 1, 1, 1, 1, 1, 1, 4], [0, 1.165854935, 2.270189951, 3.319242023, 4.32700288, 5.306253956, 6.24172124, 7.169108591, 8.088047231, 8.999810445, 9.905349262, 10.822648491, 11.767237767, 12.739852311, 13.766490849, 14.852878837, 16], False, 3, [1, 1, 1, 1, 1, 1, 1, 1, 1, 1, 1, 1, 1, 1, 1, 1, 1, 1, 1], False),
    Part.BSplineCurve([App.Vector(1.823572, -1.905385, 0), App.Vector(1.824029, -1.924292, 0), App.Vector(1.824922, -1.961264, 0), App.Vector(1.832478, -2.015052, 0), App.Vector(1.844936, -2.065859, 0), App.Vector(1.862371, -2.113442, 0), App.Vector(1.884053, -2.158359, 0), App.Vector(1.912127, -2.19912, 0), App.Vector(1.943686, -2.237947, 0), App.Vector(1.98131, -2.272342, 0), App.Vector(2.022269, -2.303651, 0), App.Vector(2.066978, -2.330672, 0), App.Vector(2.11481, -2.353421, 0), App.Vector(2.165754, -2.372573, 0), App.Vector(2.220102, -2.386715, 0), App.Vector(2.277565, -2.397118, 0), App.Vector(2.338179, -2.403796, 0), App.Vector(2.379725, -2.404425, 0), App.Vector(2.400942, -2.404746, 0)], [4, 1, 1, 1, 1, 1, 1, 1, 1, 1, 1, 1, 1, 1, 1, 1, 4], [0, 1.052816602, 2.058828735, 3.018813999, 3.961574988, 4.877590722, 5.788574389, 6.712363302, 7.658909047, 8.620312049, 9.580784896, 10.562948504, 11.56722449, 12.607883026, 13.686460295, 14.818448981, 16], False, 3, [1, 1, 1, 1, 1, 1, 1, 1, 1, 1, 1, 1, 1, 1, 1, 1, 1, 1, 1], False),
    Part.BSplineCurve([App.Vector(2.268773, -1.450743, 0), App.Vector(2.250856, -1.453892, 0), App.Vector(2.216003, -1.460016, 0), App.Vector(2.165553, -1.471688, 0), App.Vector(2.118683, -1.486845, 0), App.Vector(2.074988, -1.503877, 0), App.Vector(2.03493, -1.524122, 0), App.Vector(1.997876, -1.546057, 0), App.Vector(1.965141, -1.571925, 0), App.Vector(1.935014, -1.599122, 0), App.Vector(1.908467, -1.628973, 0), App.Vector(1.886086, -1.661765, 0), App.Vector(1.866561, -1.696585, 0), App.Vector(1.850574, -1.733855, 0), App.Vector(1.838873, -1.773634, 0), App.Vector(1.829619, -1.815414, 0), App.Vector(1.824956, -1.859734, 0), App.Vector(1.824039, -1.889973, 0), App.Vector(1.823572, -1.905385, 0)], [4, 1, 1, 1, 1, 1, 1, 1, 1, 1, 1, 1, 1, 1, 1, 1, 4], [0, 1.237781394, 2.407677316, 3.51963579, 4.58689595, 5.594855907, 6.570874, 7.510833816, 8.428091223, 9.330271693, 10.221190844, 11.124215526, 12.043132878, 12.973586933, 13.941700858, 14.950982896, 16], False, 3, [1, 1, 1, 1, 1, 1, 1, 1, 1, 1, 1, 1, 1, 1, 1, 1, 1, 1, 1], False),
], False)
sketch10.addConstraint([
    Sketcher.Constraint("Block", 3),
    Sketcher.Constraint("Block", 5),
    Sketcher.Constraint("Block", 10),
    Sketcher.Constraint("Block", 12),
    Sketcher.Constraint("Block", 15),
    Sketcher.Constraint("Block", 16),
    Sketcher.Constraint("Block", 17),
    Sketcher.Constraint("Block", 18),
    Sketcher.Constraint("Block", 19),
    Sketcher.Constraint("Block", 26),
    Sketcher.Constraint("Block", 27),
    Sketcher.Constraint("Block", 28),
    Sketcher.Constraint("Block", 29),
    Sketcher.Constraint("Coincident", 0, 2, 1, 1),
    Sketcher.Constraint("Coincident", 1, 2, 2, 1),
    Sketcher.Constraint("Coincident", 2, 2, 3, 2),
    Sketcher.Constraint("Coincident", 3, 1, 4, 1),
    Sketcher.Constraint("Coincident", 4, 2, 5, 2),
    Sketcher.Constraint("Coincident", 5, 1, 6, 1),
    Sketcher.Constraint("Coincident", 6, 2, 0, 1),
    Sketcher.Constraint("Coincident", 7, 2, 8, 1),
    Sketcher.Constraint("Coincident", 8, 2, 9, 1),
    Sketcher.Constraint("Coincident", 9, 2, 10, 2),
    Sketcher.Constraint("Coincident", 10, 1, 11, 1),
    Sketcher.Constraint("Coincident", 11, 2, 12, 2),
    Sketcher.Constraint("Coincident", 12, 1, 13, 1),
    Sketcher.Constraint("Coincident", 13, 2, 7, 1),
    Sketcher.Constraint("Coincident", 14, 2, 15, 2),
    Sketcher.Constraint("Coincident", 19, 1, 20, 1),
    Sketcher.Constraint("Coincident", 20, 2, 21, 1),
    Sketcher.Constraint("Coincident", 21, 2, 22, 1),
    Sketcher.Constraint("Coincident", 22, 2, 23, 1),
    Sketcher.Constraint("Coincident", 23, 2, 24, 1),
    Sketcher.Constraint("Coincident", 24, 2, 25, 1),
    Sketcher.Constraint("Coincident", 25, 2, 26, 2),
    Sketcher.Constraint("Coincident", 29, 1, 14, 1),
    Sketcher.Constraint("Vertical", 0),
    Sketcher.Constraint("Horizontal", 1),
    Sketcher.Constraint("Vertical", 2),
    Sketcher.Constraint("Horizontal", 6),
    Sketcher.Constraint("Vertical", 7),
    Sketcher.Constraint("Horizontal", 8),
    Sketcher.Constraint("Vertical", 9),
    Sketcher.Constraint("Horizontal", 13),
    Sketcher.Constraint("Vertical", 21),
    Sketcher.Constraint("Horizontal", 22),
    Sketcher.Constraint("Vertical", 23),
    Sketcher.Constraint("DistanceX", 22, 1, 22, 2, Q("0.318001 mm")),
    Sketcher.Constraint("DistanceY", 0, 2, 0, 1, Q("0.318001 mm")),
    Sketcher.Constraint("DistanceY", 7, 2, 7, 1, Q("0.318001 mm")),
    Sketcher.Constraint("DistanceX", 1, 1, 1, 2, Q("2.480408 mm")),
    Sketcher.Constraint("DistanceX", 8, 1, 8, 2, Q("2.480408 mm")),
    Sketcher.Constraint("DistanceX", 20, 2, 8, 2, Q("0.349801 mm")),
    Sketcher.Constraint("DistanceX", 14, 2, 24, 2, Q("0.508802 mm")),
    Sketcher.Constraint("DistanceY", 24, 2, 14, 2, Q("0.0318 mm")),
    Sketcher.Constraint("DistanceY", 23, 2, 24, 2, Q("0.254401 mm")),
    Sketcher.Constraint("Distance", 20, Q("0.65474 mm")),
    Sketcher.Constraint("DistanceY", 21, 2, 21, 1, Q("0.916737 mm")),
])
pocket6 = body.newObject("PartDesign::Pocket", "Pocket005")
pocket6.Profile = sketch10
pocket6.Length = Q("0.02 in")

sketch11 = body.newObject("Sketcher::SketchObject", "Sketch010")
sketch11.AttachmentSupport = (doc.getObject("XY_Plane"), [""])
sketch11.MapMode = "FlatFace"
sketch11.AttachmentOffset = App.Placement(App.Vector(0, 0, -0.24 * 25.4), App.Rotation())
add_polygon(sketch11, [(7.9, -3.8), (7.9, -4.3), (4.1, -4.3), (4.1, -3.8)])
add_polygon(sketch11, [(-4.1, -3.8), (-4.1, -4.3), (-7.9, -4.3), (-7.9, -3.8)])
sketch11.addConstraint([
    Sketcher.Constraint("Vertical", 0),
    Sketcher.Constraint("Horizontal", 1),
    Sketcher.Constraint("Vertical", 2),
    Sketcher.Constraint("Horizontal", 3),
    Sketcher.Constraint("Vertical", 4),
    Sketcher.Constraint("Horizontal", 5),
    Sketcher.Constraint("Vertical", 6),
    Sketcher.Constraint("Horizontal", 7),
    Sketcher.Constraint("Symmetric", 1, 2, 4, 2, -2),
    Sketcher.Constraint("Symmetric", 3, 2, 6, 2, -2),
    Sketcher.Constraint("DistanceX", 1, 2, 1, 1, Q("0.15 in")),
    Sketcher.Constraint("DistanceY", 0, 2, 0, 1, Q("0.02 in")),
    Sketcher.Constraint("DistanceX", -1, 1, 0, 2, Q("0.3125 in")),
    Sketcher.Constraint("DistanceY", 0, 2, -1, 1, Q("0.168 in")),
])
pad5 = body.newObject("PartDesign::Pad", "Pad004")
pad5.Profile = sketch11
pad5.Length = Q("0.25 in")
pad5.Reversed = True

sketch12 = body.newObject("Sketcher::SketchObject", "Sketch011")
sketch12.AttachmentSupport = (doc.getObject("XZ_Plane"), [""])
sketch12.MapMode = "FlatFace"
sketch12.AttachmentOffset = App.Placement(App.Vector(0, 0, 0.148 * 25.4), App.Rotation())
sketch12.addGeometry([
    Part.LineSegment(App.Vector(4.1, -11, 0), App.Vector(4.1, -9.8, 0)),
    Part.ArcOfCircle(Part.Circle(App.Vector(4.1, -10.4, 0), App.Vector(0, 0, 1), 0.6), math.radians(-90), math.radians(90)),
    Part.LineSegment(App.Vector(7.9, -9.8, 0), App.Vector(7.9, -11, 0)),
    Part.ArcOfCircle(Part.Circle(App.Vector(7.9, -10.4, 0), App.Vector(0, 0, 1), 0.6), math.radians(90), math.radians(270)),
    Part.LineSegment(App.Vector(-7.9, -11, 0), App.Vector(-7.9, -9.8, 0)),
    Part.ArcOfCircle(Part.Circle(App.Vector(-7.9, -10.4, 0), App.Vector(0, 0, 1), 0.6), math.radians(-90), math.radians(90)),
    Part.LineSegment(App.Vector(-4.1, -9.8, 0), App.Vector(-4.1, -11, 0)),
    Part.ArcOfCircle(Part.Circle(App.Vector(-4.1, -10.4, 0), App.Vector(0, 0, 1), 0.6), math.radians(90), math.radians(270)),
], False)
sketch12.addConstraint([
    Sketcher.Constraint("Coincident", 0, 1, 1, 1),
    Sketcher.Constraint("Coincident", 1, 2, 0, 2),
    Sketcher.Constraint("Coincident", 2, 1, 3, 1),
    Sketcher.Constraint("Coincident", 3, 2, 2, 2),
    Sketcher.Constraint("Coincident", 4, 1, 5, 1),
    Sketcher.Constraint("Coincident", 5, 2, 4, 2),
    Sketcher.Constraint("Coincident", 6, 1, 7, 1),
    Sketcher.Constraint("Coincident", 7, 2, 6, 2),
    Sketcher.Constraint("Vertical", 0),
    Sketcher.Constraint("Vertical", 2),
    Sketcher.Constraint("Vertical", 4),
    Sketcher.Constraint("Vertical", 6),
    Sketcher.Constraint("Equal", 1, 3),
    Sketcher.Constraint("Equal", 3, 5),
    Sketcher.Constraint("Equal", 5, 7),
    Sketcher.Constraint("Symmetric", 3, 3, 5, 3, -2),
    Sketcher.Constraint("Symmetric", 1, 3, 7, 3, -2),
    Sketcher.Constraint("Horizontal", 1, 3, 3, 3),
    Sketcher.Constraint("Vertical", 1, 3, 0, 1),
    Sketcher.Constraint("Vertical", 3, 3, 2, 1),
    Sketcher.Constraint("Vertical", 5, 3, 4, 1),
    Sketcher.Constraint("Vertical", 7, 3, 6, 1),
    Sketcher.Constraint("Radius", 1, Q("0.025 in")),
    Sketcher.Constraint("DistanceY", 1, 3, -1, 1, Q("0.41 in")),
    Sketcher.Constraint("DistanceX", 1, 3, 3, 3, Q("0.15 in")),
    Sketcher.Constraint("DistanceX", -1, 1, 3, 3, Q("0.3125 in")),
])
pocket7 = body.newObject("PartDesign::Pocket", "Pocket006")
pocket7.Profile = sketch12
pocket7.Length = Q("0.05 in")
pocket7.Reversed = True

doc.recompute()
